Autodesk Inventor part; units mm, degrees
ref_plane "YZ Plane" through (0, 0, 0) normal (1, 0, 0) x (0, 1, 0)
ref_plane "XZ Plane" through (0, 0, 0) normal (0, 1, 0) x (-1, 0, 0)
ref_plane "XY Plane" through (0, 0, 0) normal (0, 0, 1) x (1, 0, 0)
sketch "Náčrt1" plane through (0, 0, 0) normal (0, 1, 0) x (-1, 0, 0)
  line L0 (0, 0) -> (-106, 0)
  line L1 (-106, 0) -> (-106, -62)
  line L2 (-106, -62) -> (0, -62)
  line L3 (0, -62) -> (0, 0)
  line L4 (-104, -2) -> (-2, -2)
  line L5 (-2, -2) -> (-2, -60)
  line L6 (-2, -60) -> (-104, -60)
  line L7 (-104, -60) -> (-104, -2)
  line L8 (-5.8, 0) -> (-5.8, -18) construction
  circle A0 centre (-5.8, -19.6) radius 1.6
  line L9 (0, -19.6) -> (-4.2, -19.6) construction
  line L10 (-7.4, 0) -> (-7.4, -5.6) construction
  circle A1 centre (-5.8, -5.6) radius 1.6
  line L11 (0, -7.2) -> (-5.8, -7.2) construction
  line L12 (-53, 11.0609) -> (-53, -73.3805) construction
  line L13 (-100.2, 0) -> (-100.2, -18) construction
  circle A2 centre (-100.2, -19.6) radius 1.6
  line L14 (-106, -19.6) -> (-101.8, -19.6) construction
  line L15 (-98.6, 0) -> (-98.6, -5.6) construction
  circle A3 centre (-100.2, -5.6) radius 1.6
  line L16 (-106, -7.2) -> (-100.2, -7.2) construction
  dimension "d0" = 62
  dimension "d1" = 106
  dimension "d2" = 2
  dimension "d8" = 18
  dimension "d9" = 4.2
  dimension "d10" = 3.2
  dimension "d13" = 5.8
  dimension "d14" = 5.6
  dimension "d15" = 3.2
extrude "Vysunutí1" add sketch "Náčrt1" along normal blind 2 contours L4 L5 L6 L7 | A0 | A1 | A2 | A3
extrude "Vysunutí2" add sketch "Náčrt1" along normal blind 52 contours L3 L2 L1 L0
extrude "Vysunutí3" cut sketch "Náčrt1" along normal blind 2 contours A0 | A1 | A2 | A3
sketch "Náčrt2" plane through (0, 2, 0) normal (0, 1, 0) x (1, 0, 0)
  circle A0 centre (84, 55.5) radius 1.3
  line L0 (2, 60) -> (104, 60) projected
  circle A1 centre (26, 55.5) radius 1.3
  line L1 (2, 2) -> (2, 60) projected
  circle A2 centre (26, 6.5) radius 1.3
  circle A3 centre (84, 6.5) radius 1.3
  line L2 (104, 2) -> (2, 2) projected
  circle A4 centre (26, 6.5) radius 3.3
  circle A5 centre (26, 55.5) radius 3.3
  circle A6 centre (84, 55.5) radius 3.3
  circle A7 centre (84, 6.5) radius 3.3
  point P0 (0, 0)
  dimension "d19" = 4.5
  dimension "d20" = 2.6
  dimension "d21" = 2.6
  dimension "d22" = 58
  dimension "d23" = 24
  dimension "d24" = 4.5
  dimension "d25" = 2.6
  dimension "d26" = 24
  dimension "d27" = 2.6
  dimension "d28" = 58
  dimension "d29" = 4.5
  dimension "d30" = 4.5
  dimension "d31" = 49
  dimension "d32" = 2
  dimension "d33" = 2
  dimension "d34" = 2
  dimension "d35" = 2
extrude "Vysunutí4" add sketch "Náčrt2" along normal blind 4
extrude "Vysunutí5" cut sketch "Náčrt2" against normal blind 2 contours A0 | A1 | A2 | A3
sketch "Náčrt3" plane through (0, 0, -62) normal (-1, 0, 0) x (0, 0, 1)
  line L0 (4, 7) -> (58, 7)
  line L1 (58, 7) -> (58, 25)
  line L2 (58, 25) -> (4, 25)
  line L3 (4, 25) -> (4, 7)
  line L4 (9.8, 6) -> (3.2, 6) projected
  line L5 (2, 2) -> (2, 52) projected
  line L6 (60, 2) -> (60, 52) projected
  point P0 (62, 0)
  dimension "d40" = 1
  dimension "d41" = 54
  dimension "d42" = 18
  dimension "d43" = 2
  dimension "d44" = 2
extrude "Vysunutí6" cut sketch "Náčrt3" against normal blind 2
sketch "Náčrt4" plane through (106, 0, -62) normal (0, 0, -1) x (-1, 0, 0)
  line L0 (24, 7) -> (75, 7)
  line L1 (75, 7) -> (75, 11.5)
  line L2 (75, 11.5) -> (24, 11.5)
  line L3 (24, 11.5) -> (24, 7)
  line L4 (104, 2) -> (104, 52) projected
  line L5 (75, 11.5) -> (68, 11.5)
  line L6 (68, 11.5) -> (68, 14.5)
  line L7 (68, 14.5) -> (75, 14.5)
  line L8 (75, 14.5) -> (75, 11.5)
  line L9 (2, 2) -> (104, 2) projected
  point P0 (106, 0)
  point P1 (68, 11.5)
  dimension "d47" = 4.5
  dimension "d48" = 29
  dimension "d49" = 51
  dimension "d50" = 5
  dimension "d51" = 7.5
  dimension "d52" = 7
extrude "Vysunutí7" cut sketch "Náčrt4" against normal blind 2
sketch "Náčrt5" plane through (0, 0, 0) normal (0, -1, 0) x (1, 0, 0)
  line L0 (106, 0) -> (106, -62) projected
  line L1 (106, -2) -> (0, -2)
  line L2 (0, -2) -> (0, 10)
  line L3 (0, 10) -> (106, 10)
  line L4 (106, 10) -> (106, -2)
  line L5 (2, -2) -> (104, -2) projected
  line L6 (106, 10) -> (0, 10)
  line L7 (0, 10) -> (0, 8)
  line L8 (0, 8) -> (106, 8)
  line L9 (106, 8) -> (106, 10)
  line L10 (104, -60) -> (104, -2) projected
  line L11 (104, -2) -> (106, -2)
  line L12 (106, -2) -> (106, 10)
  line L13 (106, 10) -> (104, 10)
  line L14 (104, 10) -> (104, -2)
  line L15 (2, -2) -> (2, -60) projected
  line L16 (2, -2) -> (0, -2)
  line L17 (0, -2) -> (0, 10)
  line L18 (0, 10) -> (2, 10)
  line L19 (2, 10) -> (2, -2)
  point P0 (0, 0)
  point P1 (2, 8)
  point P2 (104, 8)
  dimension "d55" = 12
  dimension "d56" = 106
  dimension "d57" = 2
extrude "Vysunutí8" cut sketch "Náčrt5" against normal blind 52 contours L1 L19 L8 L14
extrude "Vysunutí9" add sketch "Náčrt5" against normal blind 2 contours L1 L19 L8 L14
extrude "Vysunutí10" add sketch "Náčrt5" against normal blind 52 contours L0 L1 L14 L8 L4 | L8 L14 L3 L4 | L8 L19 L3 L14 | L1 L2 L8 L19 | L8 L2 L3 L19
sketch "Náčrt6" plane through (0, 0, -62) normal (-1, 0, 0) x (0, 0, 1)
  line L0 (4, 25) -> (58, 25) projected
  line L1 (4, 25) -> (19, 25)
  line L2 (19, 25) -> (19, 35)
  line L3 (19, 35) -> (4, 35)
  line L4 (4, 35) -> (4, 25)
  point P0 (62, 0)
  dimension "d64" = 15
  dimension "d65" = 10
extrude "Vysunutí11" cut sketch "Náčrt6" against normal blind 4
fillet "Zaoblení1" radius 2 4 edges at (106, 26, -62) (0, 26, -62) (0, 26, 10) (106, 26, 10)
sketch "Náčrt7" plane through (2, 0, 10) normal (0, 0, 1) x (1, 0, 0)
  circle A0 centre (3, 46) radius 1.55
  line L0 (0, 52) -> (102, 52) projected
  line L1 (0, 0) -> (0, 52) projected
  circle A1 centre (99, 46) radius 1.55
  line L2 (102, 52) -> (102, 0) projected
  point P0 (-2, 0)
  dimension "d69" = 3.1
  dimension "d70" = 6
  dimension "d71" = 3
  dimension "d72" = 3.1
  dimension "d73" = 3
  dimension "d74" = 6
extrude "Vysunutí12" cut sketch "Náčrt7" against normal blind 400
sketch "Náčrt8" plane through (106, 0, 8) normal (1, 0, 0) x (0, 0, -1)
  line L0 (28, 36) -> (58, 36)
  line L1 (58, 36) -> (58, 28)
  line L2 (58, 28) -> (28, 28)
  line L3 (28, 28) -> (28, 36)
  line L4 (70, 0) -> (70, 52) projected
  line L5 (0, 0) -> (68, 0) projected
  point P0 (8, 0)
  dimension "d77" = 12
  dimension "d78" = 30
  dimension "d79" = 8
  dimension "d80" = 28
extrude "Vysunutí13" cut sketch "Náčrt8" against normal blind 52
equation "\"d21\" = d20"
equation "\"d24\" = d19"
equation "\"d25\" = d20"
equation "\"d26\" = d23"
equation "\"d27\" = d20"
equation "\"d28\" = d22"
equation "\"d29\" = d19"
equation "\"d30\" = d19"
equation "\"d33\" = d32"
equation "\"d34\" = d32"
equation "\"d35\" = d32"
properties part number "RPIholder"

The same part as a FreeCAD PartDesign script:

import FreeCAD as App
import Part
import Sketcher

V = App.Vector


def edges_at(feature, points):
    """Names of the edges that pass closest to the given points."""
    edges = feature.Shape.Edges
    near = lambda p: min(range(len(edges)), key=lambda i: edges[i].distToShape(Part.Vertex(*p))[0])
    return sorted({f"Edge{near(p) + 1}" for p in points})

doc = App.newDocument("Part")
body = doc.addObject("PartDesign::Body", "Body")

# Sketch on XZ plane
sketch1 = body.newObject("Sketcher::SketchObject", "Sketch")
sketch1.AttachmentSupport = (doc.getObject("XZ_Plane"), [""])
sketch1.MapMode = "FlatFace"
sketch1.addGeometry([
    Part.LineSegment(V(2, -2, 0), V(104, -2, 0)),
    Part.LineSegment(V(104, -2, 0), V(104, -60, 0)),
    Part.LineSegment(V(104, -60, 0), V(2, -60, 0)),
    Part.LineSegment(V(2, -60, 0), V(2, -2, 0)),
], False)
sketch1.addConstraint([
    Sketcher.Constraint("Coincident", 0, 2, 1, 1),
    Sketcher.Constraint("Coincident", 1, 2, 2, 1),
    Sketcher.Constraint("Coincident", 2, 2, 3, 1),
    Sketcher.Constraint("Coincident", 3, 2, 0, 1),
    Sketcher.Constraint("Horizontal", 0),
    Sketcher.Constraint("Vertical", 1),
    Sketcher.Constraint("Horizontal", 2),
    Sketcher.Constraint("Vertical", 3),
    Sketcher.Constraint("DistanceY", 0, 2, -1, 1, 2.0),
    Sketcher.Constraint("DistanceX", -1, 1, 2, 2, 2.0),
    Sketcher.Constraint("DistanceX", 0, 1, 0, 2, 102.0),
    Sketcher.Constraint("DistanceY", 1, 2, 1, 1, 58.0),
])
pad1 = body.newObject("PartDesign::Pad", "Pad")
pad1.Profile = sketch1
pad1.Length = 2
pad1.Reversed = True

# Sketch on XZ plane
sketch2 = body.newObject("Sketcher::SketchObject", "Sketch001")
sketch2.AttachmentSupport = (doc.getObject("XZ_Plane"), [""])
sketch2.MapMode = "FlatFace"
sketch2.addGeometry([
    Part.LineSegment(V(0, -62, 0), V(0, 0, 0)),  # 0
    Part.LineSegment(V(0, 0, 0), V(106, 0, 0)),  # 1
    Part.LineSegment(V(106, 0, 0), V(106, -62, 0)),  # 2
    Part.LineSegment(V(106, -62, 0), V(0, -62, 0)),  # 3
    Part.LineSegment(V(104, -60, 0), V(104, -2, 0)),  # 4
    Part.LineSegment(V(104, -2, 0), V(2, -2, 0)),  # 5
    Part.LineSegment(V(2, -2, 0), V(2, -60, 0)),  # 6
    Part.LineSegment(V(2, -60, 0), V(104, -60, 0)),  # 7
], False)
sketch2.addConstraint([
    Sketcher.Constraint("Coincident", 0, 2, 1, 1),
    Sketcher.Constraint("Coincident", 1, 2, 2, 1),
    Sketcher.Constraint("Coincident", 2, 2, 3, 1),
    Sketcher.Constraint("Coincident", 3, 2, 0, 1),
    Sketcher.Constraint("Coincident", 4, 2, 5, 1),
    Sketcher.Constraint("Coincident", 5, 2, 6, 1),
    Sketcher.Constraint("Coincident", 6, 2, 7, 1),
    Sketcher.Constraint("Coincident", 7, 2, 4, 1),
    Sketcher.Constraint("Vertical", 0),
    Sketcher.Constraint("Horizontal", 1),
    Sketcher.Constraint("Vertical", 2),
    Sketcher.Constraint("Horizontal", 3),
    Sketcher.Constraint("Vertical", 4),
    Sketcher.Constraint("Horizontal", 5),
    Sketcher.Constraint("Vertical", 6),
    Sketcher.Constraint("Horizontal", 7),
    Sketcher.Constraint("Coincident", 0, 2, -1, 1),
    Sketcher.Constraint("DistanceX", 1, 1, 1, 2, 106.0),
    Sketcher.Constraint("DistanceY", 0, 1, 0, 2, 62.0),
    Sketcher.Constraint("DistanceY", 4, 2, -1, 1, 2.0),
    Sketcher.Constraint("DistanceX", -1, 1, 5, 2, 2.0),
    Sketcher.Constraint("DistanceX", 4, 2, 1, 2, 2.0),
    Sketcher.Constraint("DistanceY", 3, 2, 6, 2, 2.0),
])
pad2 = body.newObject("PartDesign::Pad", "Pad001")
pad2.Profile = sketch2
pad2.Length = 52
pad2.Reversed = True

# Sketch on XZ plane
sketch3 = body.newObject("Sketcher::SketchObject", "Sketch002")
sketch3.AttachmentSupport = (doc.getObject("XZ_Plane"), [""])
sketch3.MapMode = "FlatFace"
sketch3.addGeometry([
    Part.Circle(V(5.8, -19.6, 0), V(0, 0, 1), 1.6),
    Part.Circle(V(5.8, -5.6, 0), V(0, 0, 1), 1.6),
    Part.Circle(V(100.2, -19.6, 0), V(0, 0, 1), 1.6),
    Part.Circle(V(100.2, -5.6, 0), V(0, 0, 1), 1.6),
], False)
sketch3.addConstraint([
    Sketcher.Constraint("Equal", 0, 1),
    Sketcher.Constraint("Equal", 1, 2),
    Sketcher.Constraint("Equal", 2, 3),
    Sketcher.Constraint("Horizontal", 0, 3, 2, 3),
    Sketcher.Constraint("Horizontal", 1, 3, 3, 3),
    Sketcher.Constraint("Vertical", 0, 3, 1, 3),
    Sketcher.Constraint("Vertical", 2, 3, 3, 3),
    Sketcher.Constraint("Diameter", 0, 3.2),
    Sketcher.Constraint("DistanceX", -1, 1, 0, 3, 5.8),
    Sketcher.Constraint("DistanceY", 1, 3, -1, 1, 5.6),
    Sketcher.Constraint("DistanceY", 0, 3, 1, 3, 14.0),
    Sketcher.Constraint("DistanceX", -1, 1, 2, 3, 100.2),
])
pocket1 = body.newObject("PartDesign::Pocket", "Pocket")
pocket1.Profile = sketch3
pocket1.Length = 2

# Sketch on XZ plane
sketch4 = body.newObject("Sketcher::SketchObject", "Sketch003")
sketch4.AttachmentSupport = (doc.getObject("XZ_Plane"), [""])
sketch4.MapMode = "FlatFace"
sketch4.AttachmentOffset = App.Placement(V(0, 0, -2), App.Rotation())
sketch4.addGeometry([
    Part.Circle(V(26, -6.5, 0), V(0, 0, 1), 3.3),  # 0
    Part.Circle(V(26, -6.5, 0), V(0, 0, 1), 1.3),  # 1
    Part.Circle(V(26, -55.5, 0), V(0, 0, 1), 3.3),  # 2
    Part.Circle(V(26, -55.5, 0), V(0, 0, 1), 1.3),  # 3
    Part.Circle(V(84, -55.5, 0), V(0, 0, 1), 3.3),  # 4
    Part.Circle(V(84, -55.5, 0), V(0, 0, 1), 1.3),  # 5
    Part.Circle(V(84, -6.5, 0), V(0, 0, 1), 3.3),  # 6
    Part.Circle(V(84, -6.5, 0), V(0, 0, 1), 1.3),  # 7
], False)
sketch4.addConstraint([
    Sketcher.Constraint("Coincident", 1, 3, 0, 3),
    Sketcher.Constraint("Coincident", 3, 3, 2, 3),
    Sketcher.Constraint("Coincident", 5, 3, 4, 3),
    Sketcher.Constraint("Coincident", 7, 3, 6, 3),
    Sketcher.Constraint("Equal", 0, 2),
    Sketcher.Constraint("Equal", 1, 3),
    Sketcher.Constraint("Equal", 2, 4),
    Sketcher.Constraint("Equal", 3, 5),
    Sketcher.Constraint("Equal", 4, 6),
    Sketcher.Constraint("Equal", 5, 7),
    Sketcher.Constraint("Horizontal", 3, 3, 4, 3),
    Sketcher.Constraint("Horizontal", 1, 3, 6, 3),
    Sketcher.Constraint("Vertical", 1, 3, 2, 3),
    Sketcher.Constraint("Vertical", 5, 3, 6, 3),
    Sketcher.Constraint("Diameter", 1, 2.6),
    Sketcher.Constraint("DistanceY", 2, 3, 0, 3, 49.0),
    Sketcher.Constraint("DistanceX", 2, 3, 4, 3, 58.0),
    Sketcher.Constraint("Diameter", 0, 6.6),
    Sketcher.Constraint("DistanceX", -1, 1, 0, 3, 26.0),
    Sketcher.Constraint("DistanceY", 0, 3, -1, 1, 6.5),
])
pad3 = body.newObject("PartDesign::Pad", "Pad002")
pad3.Profile = sketch4
pad3.Length = 4
pad3.Reversed = True

# Sketch on XZ plane
sketch5 = body.newObject("Sketcher::SketchObject", "Sketch004")
sketch5.AttachmentSupport = (doc.getObject("XZ_Plane"), [""])
sketch5.MapMode = "FlatFace"
sketch5.AttachmentOffset = App.Placement(V(0, 0, -2), App.Rotation())
sketch5.addGeometry([
    Part.Circle(V(84, -55.5, 0), V(0, 0, 1), 1.3),
    Part.Circle(V(26, -55.5, 0), V(0, 0, 1), 1.3),
    Part.Circle(V(26, -6.5, 0), V(0, 0, 1), 1.3),
    Part.Circle(V(84, -6.5, 0), V(0, 0, 1), 1.3),
], False)
sketch5.addConstraint([
    Sketcher.Constraint("Equal", 0, 1),
    Sketcher.Constraint("Equal", 1, 2),
    Sketcher.Constraint("Equal", 2, 3),
    Sketcher.Constraint("Horizontal", 0, 3, 1, 3),
    Sketcher.Constraint("Horizontal", 2, 3, 3, 3),
    Sketcher.Constraint("Vertical", 1, 3, 2, 3),
    Sketcher.Constraint("Vertical", 0, 3, 3, 3),
    Sketcher.Constraint("Diameter", 0, 2.6),
    Sketcher.Constraint("DistanceX", 1, 3, 0, 3, 58.0),
    Sketcher.Constraint("DistanceY", 1, 3, 2, 3, 49.0),
    Sketcher.Constraint("DistanceX", -1, 1, 0, 3, 84.0),
    Sketcher.Constraint("DistanceY", 0, 3, -1, 1, 55.5),
])
pocket2 = body.newObject("PartDesign::Pocket", "Pocket001")
pocket2.Profile = sketch5
pocket2.Length = 2
pocket2.Reversed = True

# Sketch on YZ plane
sketch6 = body.newObject("Sketcher::SketchObject", "Sketch005")
sketch6.AttachmentSupport = (doc.getObject("YZ_Plane"), [""])
sketch6.MapMode = "FlatFace"
sketch6.addGeometry([
    Part.LineSegment(V(25, -58, 0), V(7, -58, 0)),
    Part.LineSegment(V(7, -58, 0), V(7, -4, 0)),
    Part.LineSegment(V(7, -4, 0), V(25, -4, 0)),
    Part.LineSegment(V(25, -4, 0), V(25, -58, 0)),
], False)
sketch6.addConstraint([
    Sketcher.Constraint("Coincident", 0, 2, 1, 1),
    Sketcher.Constraint("Coincident", 1, 2, 2, 1),
    Sketcher.Constraint("Coincident", 2, 2, 3, 1),
    Sketcher.Constraint("Coincident", 3, 2, 0, 1),
    Sketcher.Constraint("Horizontal", 0),
    Sketcher.Constraint("Vertical", 1),
    Sketcher.Constraint("Horizontal", 2),
    Sketcher.Constraint("Vertical", 3),
    Sketcher.Constraint("DistanceX", 0, 2, 0, 1, 18.0),
    Sketcher.Constraint("DistanceY", 1, 1, 1, 2, 54.0),
    Sketcher.Constraint("DistanceX", -1, 1, 0, 2, 7.0),
    Sketcher.Constraint("DistanceY", 0, 2, -1, 1, 58.0),
])
pocket3 = body.newObject("PartDesign::Pocket", "Pocket002")
pocket3.Profile = sketch6
pocket3.Length = 2
pocket3.Reversed = True

# Sketch on XY plane
sketch7 = body.newObject("Sketcher::SketchObject", "Sketch006")
sketch7.AttachmentSupport = (doc.getObject("XY_Plane"), [""])
sketch7.MapMode = "FlatFace"
sketch7.AttachmentOffset = App.Placement(V(0, 0, -62), App.Rotation())
sketch7.addGeometry([
    Part.LineSegment(V(82, 11.5, 0), V(82, 7, 0)),  # 0
    Part.LineSegment(V(82, 7, 0), V(31, 7, 0)),  # 1
    Part.LineSegment(V(31, 7, 0), V(31, 14.5, 0)),  # 2
    Part.LineSegment(V(31, 14.5, 0), V(38, 14.5, 0)),  # 3
    Part.LineSegment(V(38, 14.5, 0), V(38, 11.5, 0)),  # 4
    Part.LineSegment(V(38, 11.5, 0), V(82, 11.5, 0)),  # 5
], False)
sketch7.addConstraint([
    Sketcher.Constraint("Coincident", 0, 2, 1, 1),
    Sketcher.Constraint("Coincident", 1, 2, 2, 1),
    Sketcher.Constraint("Coincident", 2, 2, 3, 1),
    Sketcher.Constraint("Coincident", 3, 2, 4, 1),
    Sketcher.Constraint("Coincident", 4, 2, 5, 1),
    Sketcher.Constraint("Coincident", 5, 2, 0, 1),
    Sketcher.Constraint("Vertical", 0),
    Sketcher.Constraint("Horizontal", 1),
    Sketcher.Constraint("Vertical", 2),
    Sketcher.Constraint("Horizontal", 3),
    Sketcher.Constraint("Vertical", 4),
    Sketcher.Constraint("Horizontal", 5),
    Sketcher.Constraint("DistanceX", 1, 2, 1, 1, 51.0),
    Sketcher.Constraint("DistanceX", 3, 1, 3, 2, 7.0),
    Sketcher.Constraint("DistanceY", 0, 2, 0, 1, 4.5),
    Sketcher.Constraint("DistanceY", 2, 1, 2, 2, 7.5),
    Sketcher.Constraint("DistanceY", -1, 1, 0, 2, 7.0),
    Sketcher.Constraint("DistanceX", -1, 1, 0, 2, 82.0),
])
pocket4 = body.newObject("PartDesign::Pocket", "Pocket003")
pocket4.Profile = sketch7
pocket4.Length = 2
pocket4.Reversed = True

# Sketch on XZ plane
sketch8 = body.newObject("Sketcher::SketchObject", "Sketch007")
sketch8.AttachmentSupport = (doc.getObject("XZ_Plane"), [""])
sketch8.MapMode = "FlatFace"
sketch8.addGeometry([
    Part.LineSegment(V(2, -2, 0), V(104, -2, 0)),
    Part.LineSegment(V(104, -2, 0), V(104, 8, 0)),
    Part.LineSegment(V(104, 8, 0), V(2, 8, 0)),
    Part.LineSegment(V(2, 8, 0), V(2, -2, 0)),
], False)
sketch8.addConstraint([
    Sketcher.Constraint("Coincident", 0, 2, 1, 1),
    Sketcher.Constraint("Coincident", 1, 2, 2, 1),
    Sketcher.Constraint("Coincident", 2, 2, 3, 1),
    Sketcher.Constraint("Coincident", 3, 2, 0, 1),
    Sketcher.Constraint("Horizontal", 0),
    Sketcher.Constraint("Vertical", 1),
    Sketcher.Constraint("Horizontal", 2),
    Sketcher.Constraint("Vertical", 3),
    Sketcher.Constraint("DistanceY", 0, 2, -1, 1, 2.0),
    Sketcher.Constraint("DistanceX", -1, 1, 2, 2, 2.0),
    Sketcher.Constraint("DistanceX", 0, 1, 0, 2, 102.0),
    Sketcher.Constraint("DistanceY", 1, 1, 1, 2, 10.0),
])
pocket5 = body.newObject("PartDesign::Pocket", "Pocket004")
pocket5.Profile = sketch8
pocket5.Length = 52

# Sketch on XZ plane
sketch9 = body.newObject("Sketcher::SketchObject", "Sketch008")
sketch9.AttachmentSupport = (doc.getObject("XZ_Plane"), [""])
sketch9.MapMode = "FlatFace"
sketch9.addGeometry([
    Part.LineSegment(V(2, -2, 0), V(104, -2, 0)),
    Part.LineSegment(V(104, -2, 0), V(104, 8, 0)),
    Part.LineSegment(V(104, 8, 0), V(2, 8, 0)),
    Part.LineSegment(V(2, 8, 0), V(2, -2, 0)),
], False)
sketch9.addConstraint([
    Sketcher.Constraint("Coincident", 0, 2, 1, 1),
    Sketcher.Constraint("Coincident", 1, 2, 2, 1),
    Sketcher.Constraint("Coincident", 2, 2, 3, 1),
    Sketcher.Constraint("Coincident", 3, 2, 0, 1),
    Sketcher.Constraint("Horizontal", 0),
    Sketcher.Constraint("Vertical", 1),
    Sketcher.Constraint("Horizontal", 2),
    Sketcher.Constraint("Vertical", 3),
    Sketcher.Constraint("DistanceY", 0, 2, -1, 1, 2.0),
    Sketcher.Constraint("DistanceX", -1, 1, 2, 2, 2.0),
    Sketcher.Constraint("DistanceX", 0, 1, 0, 2, 102.0),
    Sketcher.Constraint("DistanceY", 1, 1, 1, 2, 10.0),
])
pad4 = body.newObject("PartDesign::Pad", "Pad003")
pad4.Profile = sketch9
pad4.Length = 2
pad4.Reversed = True

# Sketch on XZ plane
sketch10 = body.newObject("Sketcher::SketchObject", "Sketch009")
sketch10.AttachmentSupport = (doc.getObject("XZ_Plane"), [""])
sketch10.MapMode = "FlatFace"
sketch10.addGeometry([
    Part.LineSegment(V(106, -2, 0), V(106, 10, 0)),  # 0
    Part.LineSegment(V(106, 10, 0), V(0, 10, 0)),  # 1
    Part.LineSegment(V(0, 10, 0), V(0, -2, 0)),  # 2
    Part.LineSegment(V(0, -2, 0), V(2, -2, 0)),  # 3
    Part.LineSegment(V(2, -2, 0), V(2, 8, 0)),  # 4
    Part.LineSegment(V(2, 8, 0), V(104, 8, 0)),  # 5
    Part.LineSegment(V(104, 8, 0), V(104, -2, 0)),  # 6
    Part.LineSegment(V(104, -2, 0), V(106, -2, 0)),  # 7
], False)
sketch10.addConstraint([
    Sketcher.Constraint("Coincident", 0, 2, 1, 1),
    Sketcher.Constraint("Coincident", 1, 2, 2, 1),
    Sketcher.Constraint("Coincident", 2, 2, 3, 1),
    Sketcher.Constraint("Coincident", 3, 2, 4, 1),
    Sketcher.Constraint("Coincident", 4, 2, 5, 1),
    Sketcher.Constraint("Coincident", 5, 2, 6, 1),
    Sketcher.Constraint("Coincident", 6, 2, 7, 1),
    Sketcher.Constraint("Coincident", 7, 2, 0, 1),
    Sketcher.Constraint("Vertical", 0),
    Sketcher.Constraint("Horizontal", 1),
    Sketcher.Constraint("Vertical", 2),
    Sketcher.Constraint("Horizontal", 3),
    Sketcher.Constraint("Vertical", 4),
    Sketcher.Constraint("Horizontal", 5),
    Sketcher.Constraint("Vertical", 6),
    Sketcher.Constraint("Horizontal", 7),
    Sketcher.Constraint("PointOnObject", 1, 2, -2),
    Sketcher.Constraint("Horizontal", 3, 2, 6, 2),
    Sketcher.Constraint("Equal", 3, 7),
    Sketcher.Constraint("DistanceX", 1, 2, 1, 1, 106.0),
    Sketcher.Constraint("DistanceX", 3, 1, 3, 2, 2.0),
    Sketcher.Constraint("DistanceY", 0, 1, 0, 2, 12.0),
    Sketcher.Constraint("DistanceY", 2, 2, -1, 1, 2.0),
    Sketcher.Constraint("DistanceY", 4, 2, 1, 2, 2.0),
])
pad5 = body.newObject("PartDesign::Pad", "Pad004")
pad5.Profile = sketch10
pad5.Length = 52
pad5.Reversed = True

# Sketch on YZ plane
sketch11 = body.newObject("Sketcher::SketchObject", "Sketch010")
sketch11.AttachmentSupport = (doc.getObject("YZ_Plane"), [""])
sketch11.MapMode = "FlatFace"
sketch11.addGeometry([
    Part.LineSegment(V(35, -58, 0), V(25, -58, 0)),
    Part.LineSegment(V(25, -58, 0), V(25, -43, 0)),
    Part.LineSegment(V(25, -43, 0), V(35, -43, 0)),
    Part.LineSegment(V(35, -43, 0), V(35, -58, 0)),
], False)
sketch11.addConstraint([
    Sketcher.Constraint("Coincident", 0, 2, 1, 1),
    Sketcher.Constraint("Coincident", 1, 2, 2, 1),
    Sketcher.Constraint("Coincident", 2, 2, 3, 1),
    Sketcher.Constraint("Coincident", 3, 2, 0, 1),
    Sketcher.Constraint("Horizontal", 0),
    Sketcher.Constraint("Vertical", 1),
    Sketcher.Constraint("Horizontal", 2),
    Sketcher.Constraint("Vertical", 3),
    Sketcher.Constraint("DistanceX", 0, 2, 0, 1, 10.0),
    Sketcher.Constraint("DistanceY", 1, 1, 1, 2, 15.0),
    Sketcher.Constraint("DistanceX", -1, 1, 0, 2, 25.0),
    Sketcher.Constraint("DistanceY", 0, 2, -1, 1, 58.0),
])
pocket6 = body.newObject("PartDesign::Pocket", "Pocket005")
pocket6.Profile = sketch11
pocket6.Length = 4
pocket6.Reversed = True
doc.recompute()

fillet = body.newObject("PartDesign::Fillet", "Fillet")
fillet.Base = (pocket6, edges_at(pocket6, [
    (106, 26, -62),
    (0, 26, -62),
    (0, 26, 10),
    (106, 26, 10),
]))
fillet.Radius = 2

# Sketch on XY plane
sketch12 = body.newObject("Sketcher::SketchObject", "Sketch011")
sketch12.AttachmentSupport = (doc.getObject("XY_Plane"), [""])
sketch12.MapMode = "FlatFace"
sketch12.AttachmentOffset = App.Placement(V(0, 0, 10), App.Rotation())
sketch12.addGeometry([
    Part.Circle(V(5, 46, 0), V(0, 0, 1), 1.6),
    Part.Circle(V(101, 46, 0), V(0, 0, 1), 1.6),
], False)
sketch12.addConstraint([
    Sketcher.Constraint("Equal", 0, 1),
    Sketcher.Constraint("Horizontal", 0, 3, 1, 3),
    Sketcher.Constraint("Diameter", 0, 3.1),
    Sketcher.Constraint("DistanceX", -1, 1, 0, 3, 5.0),
    Sketcher.Constraint("DistanceY", -1, 1, 0, 3, 46.0),
    Sketcher.Constraint("DistanceX", -1, 1, 1, 3, 101.0),
])
pocket7 = body.newObject("PartDesign::Pocket", "Pocket006")
pocket7.Profile = sketch12
pocket7.Length = 400

# Sketch on YZ plane
sketch13 = body.newObject("Sketcher::SketchObject", "Sketch012")
sketch13.AttachmentSupport = (doc.getObject("YZ_Plane"), [""])
sketch13.MapMode = "FlatFace"
sketch13.AttachmentOffset = App.Placement(V(0, 0, 106), App.Rotation())
sketch13.addGeometry([
    Part.LineSegment(V(36, -50, 0), V(36, -20, 0)),
    Part.LineSegment(V(36, -20, 0), V(28, -20, 0)),
    Part.LineSegment(V(28, -20, 0), V(28, -50, 0)),
    Part.LineSegment(V(28, -50, 0), V(36, -50, 0)),
], False)
sketch13.addConstraint([
    Sketcher.Constraint("Coincident", 0, 2, 1, 1),
    Sketcher.Constraint("Coincident", 1, 2, 2, 1),
    Sketcher.Constraint("Coincident", 2, 2, 3, 1),
    Sketcher.Constraint("Coincident", 3, 2, 0, 1),
    Sketcher.Constraint("Vertical", 0),
    Sketcher.Constraint("Horizontal", 1),
    Sketcher.Constraint("Vertical", 2),
    Sketcher.Constraint("Horizontal", 3),
    Sketcher.Constraint("DistanceX", 1, 2, 1, 1, 8.0),
    Sketcher.Constraint("DistanceY", 0, 1, 0, 2, 30.0),
    Sketcher.Constraint("DistanceX", -1, 1, 1, 2, 28.0),
    Sketcher.Constraint("DistanceY", 0, 2, -1, 1, 20.0),
])
pocket8 = body.newObject("PartDesign::Pocket", "Pocket007")
pocket8.Profile = sketch13
pocket8.Length = 52

doc.recompute()
